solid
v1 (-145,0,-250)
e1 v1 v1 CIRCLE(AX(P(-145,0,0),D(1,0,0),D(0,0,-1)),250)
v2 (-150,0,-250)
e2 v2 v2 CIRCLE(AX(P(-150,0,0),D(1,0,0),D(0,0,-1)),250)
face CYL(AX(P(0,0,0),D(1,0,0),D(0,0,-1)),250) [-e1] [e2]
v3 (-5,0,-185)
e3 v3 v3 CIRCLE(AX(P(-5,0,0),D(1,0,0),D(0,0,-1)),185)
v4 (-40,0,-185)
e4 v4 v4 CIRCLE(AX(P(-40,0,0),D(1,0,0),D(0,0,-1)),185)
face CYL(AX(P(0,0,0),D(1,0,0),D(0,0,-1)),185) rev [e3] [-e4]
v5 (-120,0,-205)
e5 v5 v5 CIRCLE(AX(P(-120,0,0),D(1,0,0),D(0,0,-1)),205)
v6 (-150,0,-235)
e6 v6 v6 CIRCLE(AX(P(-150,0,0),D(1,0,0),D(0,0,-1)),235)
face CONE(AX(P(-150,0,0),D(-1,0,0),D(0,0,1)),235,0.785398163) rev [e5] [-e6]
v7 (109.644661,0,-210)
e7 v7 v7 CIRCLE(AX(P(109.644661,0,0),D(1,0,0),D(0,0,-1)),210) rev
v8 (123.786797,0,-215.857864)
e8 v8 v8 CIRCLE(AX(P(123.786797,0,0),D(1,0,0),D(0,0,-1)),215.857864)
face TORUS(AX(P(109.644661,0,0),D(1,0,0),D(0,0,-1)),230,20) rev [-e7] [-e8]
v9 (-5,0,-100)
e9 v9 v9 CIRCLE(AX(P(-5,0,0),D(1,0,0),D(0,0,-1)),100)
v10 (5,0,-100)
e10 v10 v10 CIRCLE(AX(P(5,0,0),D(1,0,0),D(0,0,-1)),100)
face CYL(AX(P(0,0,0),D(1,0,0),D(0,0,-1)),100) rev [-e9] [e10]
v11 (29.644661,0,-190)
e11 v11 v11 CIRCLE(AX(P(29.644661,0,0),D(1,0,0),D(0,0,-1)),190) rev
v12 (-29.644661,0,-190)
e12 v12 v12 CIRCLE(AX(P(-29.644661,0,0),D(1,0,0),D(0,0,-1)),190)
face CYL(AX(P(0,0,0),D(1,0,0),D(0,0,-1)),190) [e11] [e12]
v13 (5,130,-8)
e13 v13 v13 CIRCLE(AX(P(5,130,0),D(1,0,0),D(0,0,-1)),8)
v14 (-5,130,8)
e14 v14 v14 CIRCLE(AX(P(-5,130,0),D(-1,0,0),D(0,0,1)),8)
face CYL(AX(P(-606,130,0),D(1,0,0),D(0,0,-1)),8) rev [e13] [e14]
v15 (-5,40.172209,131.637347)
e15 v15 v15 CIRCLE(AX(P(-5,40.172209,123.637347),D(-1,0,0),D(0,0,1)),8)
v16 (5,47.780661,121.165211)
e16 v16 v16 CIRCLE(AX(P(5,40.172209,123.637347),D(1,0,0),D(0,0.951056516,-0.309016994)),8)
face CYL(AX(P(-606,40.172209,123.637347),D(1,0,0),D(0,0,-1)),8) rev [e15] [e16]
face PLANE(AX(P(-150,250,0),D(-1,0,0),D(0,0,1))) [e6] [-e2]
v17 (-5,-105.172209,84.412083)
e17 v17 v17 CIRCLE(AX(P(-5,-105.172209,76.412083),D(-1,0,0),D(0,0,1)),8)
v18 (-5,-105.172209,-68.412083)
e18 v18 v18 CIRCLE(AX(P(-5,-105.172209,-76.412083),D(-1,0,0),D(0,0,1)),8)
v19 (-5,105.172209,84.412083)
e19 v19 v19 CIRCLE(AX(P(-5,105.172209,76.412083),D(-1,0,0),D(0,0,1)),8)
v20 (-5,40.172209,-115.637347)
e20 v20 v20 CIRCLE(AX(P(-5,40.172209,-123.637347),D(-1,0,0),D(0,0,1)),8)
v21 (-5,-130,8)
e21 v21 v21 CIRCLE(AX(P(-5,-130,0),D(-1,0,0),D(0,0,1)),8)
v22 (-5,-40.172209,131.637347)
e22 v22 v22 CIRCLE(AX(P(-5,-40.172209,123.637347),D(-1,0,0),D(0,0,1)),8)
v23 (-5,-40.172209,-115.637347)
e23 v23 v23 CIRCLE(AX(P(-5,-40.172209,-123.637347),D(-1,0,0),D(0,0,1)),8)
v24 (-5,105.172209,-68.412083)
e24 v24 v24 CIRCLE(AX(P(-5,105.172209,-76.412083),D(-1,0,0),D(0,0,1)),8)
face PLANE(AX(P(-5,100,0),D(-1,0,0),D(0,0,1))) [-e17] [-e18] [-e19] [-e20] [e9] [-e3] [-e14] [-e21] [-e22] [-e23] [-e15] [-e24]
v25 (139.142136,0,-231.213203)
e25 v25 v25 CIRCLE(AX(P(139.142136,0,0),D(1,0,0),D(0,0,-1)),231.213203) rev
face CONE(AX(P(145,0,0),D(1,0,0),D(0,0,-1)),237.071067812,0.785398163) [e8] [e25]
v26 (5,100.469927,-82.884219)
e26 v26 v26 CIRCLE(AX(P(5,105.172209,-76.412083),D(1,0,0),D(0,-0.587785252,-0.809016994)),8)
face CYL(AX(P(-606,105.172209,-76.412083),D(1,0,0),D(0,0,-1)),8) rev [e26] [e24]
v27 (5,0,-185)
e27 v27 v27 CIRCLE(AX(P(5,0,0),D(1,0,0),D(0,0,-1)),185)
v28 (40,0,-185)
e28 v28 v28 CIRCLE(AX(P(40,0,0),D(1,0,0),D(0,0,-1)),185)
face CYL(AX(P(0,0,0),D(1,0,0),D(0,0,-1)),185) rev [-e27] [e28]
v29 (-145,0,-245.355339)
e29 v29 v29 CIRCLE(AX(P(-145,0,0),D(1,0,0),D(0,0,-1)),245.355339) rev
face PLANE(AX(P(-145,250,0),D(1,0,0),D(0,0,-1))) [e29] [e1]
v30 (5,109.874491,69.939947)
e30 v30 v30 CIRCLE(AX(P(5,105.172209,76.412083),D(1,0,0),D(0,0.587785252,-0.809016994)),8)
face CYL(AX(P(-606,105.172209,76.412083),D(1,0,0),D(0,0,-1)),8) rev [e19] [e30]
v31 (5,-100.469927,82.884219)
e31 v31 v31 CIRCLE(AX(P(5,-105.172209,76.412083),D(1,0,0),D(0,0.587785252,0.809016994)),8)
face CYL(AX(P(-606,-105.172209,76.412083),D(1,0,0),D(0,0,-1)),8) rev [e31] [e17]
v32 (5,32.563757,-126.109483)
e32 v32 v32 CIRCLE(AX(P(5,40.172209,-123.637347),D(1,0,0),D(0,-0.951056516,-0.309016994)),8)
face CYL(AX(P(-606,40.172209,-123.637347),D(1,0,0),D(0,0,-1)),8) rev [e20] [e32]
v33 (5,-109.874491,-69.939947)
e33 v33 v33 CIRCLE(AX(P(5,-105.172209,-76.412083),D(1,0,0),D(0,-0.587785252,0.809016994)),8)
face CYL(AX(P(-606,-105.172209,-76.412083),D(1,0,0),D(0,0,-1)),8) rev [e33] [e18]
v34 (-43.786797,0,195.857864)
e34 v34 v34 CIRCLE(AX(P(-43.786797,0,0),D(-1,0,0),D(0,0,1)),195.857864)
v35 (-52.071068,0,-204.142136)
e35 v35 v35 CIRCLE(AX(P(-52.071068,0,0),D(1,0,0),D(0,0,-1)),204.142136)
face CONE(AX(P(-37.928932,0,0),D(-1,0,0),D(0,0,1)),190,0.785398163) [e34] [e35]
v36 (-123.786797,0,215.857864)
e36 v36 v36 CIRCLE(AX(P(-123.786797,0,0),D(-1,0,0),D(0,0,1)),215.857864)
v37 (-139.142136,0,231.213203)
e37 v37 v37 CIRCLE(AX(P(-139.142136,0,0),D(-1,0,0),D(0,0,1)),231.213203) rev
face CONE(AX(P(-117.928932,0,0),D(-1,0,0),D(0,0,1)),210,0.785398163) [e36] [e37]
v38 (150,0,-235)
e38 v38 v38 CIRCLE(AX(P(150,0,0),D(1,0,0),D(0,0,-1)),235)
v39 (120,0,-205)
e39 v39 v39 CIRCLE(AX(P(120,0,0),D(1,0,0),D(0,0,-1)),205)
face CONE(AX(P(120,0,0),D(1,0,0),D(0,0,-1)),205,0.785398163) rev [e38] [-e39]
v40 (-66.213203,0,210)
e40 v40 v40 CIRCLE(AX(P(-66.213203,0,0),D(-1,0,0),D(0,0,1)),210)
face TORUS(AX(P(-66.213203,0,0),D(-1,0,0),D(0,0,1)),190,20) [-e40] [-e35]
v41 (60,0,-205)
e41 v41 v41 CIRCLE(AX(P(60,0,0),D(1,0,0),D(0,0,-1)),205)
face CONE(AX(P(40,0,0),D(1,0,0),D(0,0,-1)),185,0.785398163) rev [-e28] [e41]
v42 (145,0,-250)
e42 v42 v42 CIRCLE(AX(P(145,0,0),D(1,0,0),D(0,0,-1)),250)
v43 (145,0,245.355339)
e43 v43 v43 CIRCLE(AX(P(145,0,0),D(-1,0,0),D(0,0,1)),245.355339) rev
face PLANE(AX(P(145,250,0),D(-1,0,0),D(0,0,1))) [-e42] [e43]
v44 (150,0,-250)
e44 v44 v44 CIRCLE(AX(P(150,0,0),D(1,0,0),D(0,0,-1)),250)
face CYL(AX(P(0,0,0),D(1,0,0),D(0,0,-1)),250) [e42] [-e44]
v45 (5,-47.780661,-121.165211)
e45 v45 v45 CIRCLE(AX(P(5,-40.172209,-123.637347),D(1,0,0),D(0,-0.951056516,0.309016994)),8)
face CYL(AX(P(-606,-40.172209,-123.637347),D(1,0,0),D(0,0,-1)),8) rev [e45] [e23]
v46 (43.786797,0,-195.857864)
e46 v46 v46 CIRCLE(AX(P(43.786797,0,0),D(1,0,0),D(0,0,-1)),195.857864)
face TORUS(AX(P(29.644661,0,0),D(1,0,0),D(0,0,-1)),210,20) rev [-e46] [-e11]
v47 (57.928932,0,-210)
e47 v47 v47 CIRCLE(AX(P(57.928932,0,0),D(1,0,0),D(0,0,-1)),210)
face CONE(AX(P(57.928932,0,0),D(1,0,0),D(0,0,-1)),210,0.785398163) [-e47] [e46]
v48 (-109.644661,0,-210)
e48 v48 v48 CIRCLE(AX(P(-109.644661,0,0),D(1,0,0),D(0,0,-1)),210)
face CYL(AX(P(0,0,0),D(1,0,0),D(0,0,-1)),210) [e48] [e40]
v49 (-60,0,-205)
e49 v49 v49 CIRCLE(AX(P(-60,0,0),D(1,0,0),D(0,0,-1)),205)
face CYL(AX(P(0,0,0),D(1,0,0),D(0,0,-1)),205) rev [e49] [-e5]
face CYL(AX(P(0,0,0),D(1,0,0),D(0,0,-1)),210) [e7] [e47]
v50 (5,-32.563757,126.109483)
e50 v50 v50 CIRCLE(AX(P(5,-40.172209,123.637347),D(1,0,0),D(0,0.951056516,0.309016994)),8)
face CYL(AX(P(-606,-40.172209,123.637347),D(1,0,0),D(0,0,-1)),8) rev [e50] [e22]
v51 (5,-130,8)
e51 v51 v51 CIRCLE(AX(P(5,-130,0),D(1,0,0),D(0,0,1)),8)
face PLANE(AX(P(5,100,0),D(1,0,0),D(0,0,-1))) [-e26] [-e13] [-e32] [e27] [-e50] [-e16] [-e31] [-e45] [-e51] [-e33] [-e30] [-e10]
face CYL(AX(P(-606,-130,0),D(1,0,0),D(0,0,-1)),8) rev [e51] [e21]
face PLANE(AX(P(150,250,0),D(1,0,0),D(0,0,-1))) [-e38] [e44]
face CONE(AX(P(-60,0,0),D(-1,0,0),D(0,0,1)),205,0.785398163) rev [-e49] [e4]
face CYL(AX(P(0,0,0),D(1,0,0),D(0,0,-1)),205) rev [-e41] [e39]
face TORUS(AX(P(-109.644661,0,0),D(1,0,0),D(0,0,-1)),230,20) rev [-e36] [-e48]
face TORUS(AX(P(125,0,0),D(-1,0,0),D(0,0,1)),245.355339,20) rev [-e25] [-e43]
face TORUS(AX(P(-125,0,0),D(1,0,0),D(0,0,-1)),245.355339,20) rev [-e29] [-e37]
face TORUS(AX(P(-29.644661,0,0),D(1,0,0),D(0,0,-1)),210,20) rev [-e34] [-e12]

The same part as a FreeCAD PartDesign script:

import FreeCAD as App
import Part
import Sketcher
from FreeCAD import Vector


def edges_at(feature, points):
    """Names of the edges that pass closest to the given points."""
    edges = feature.Shape.Edges
    near = lambda p: min(range(len(edges)), key=lambda i: edges[i].distToShape(Part.Vertex(*p))[0])
    return sorted({f"Edge{near(p) + 1}" for p in points})

doc = App.newDocument("Part")
body = doc.addObject("PartDesign::Body", "Body")

# Sketch on XY plane
sketch1 = body.newObject("Sketcher::SketchObject", "Sketch")
sketch1.AttachmentSupport = (doc.getObject("XY_Plane"), [""])
sketch1.MapMode = "FlatFace"
sketch1.addGeometry([
    Part.LineSegment(Vector(-150, 250, 0), Vector(-150, 235, 0)),  # 0
    Part.LineSegment(Vector(-150, 235, 0), Vector(-120, 205, 0)),  # 1
    Part.LineSegment(Vector(-120, 205, 0), Vector(-60, 205, 0)),  # 2
    Part.LineSegment(Vector(-60, 205, 0), Vector(-40, 185, 0)),  # 3
    Part.LineSegment(Vector(-40, 185, 0), Vector(-5, 185, 0)),  # 4
    Part.LineSegment(Vector(-5, 185, 0), Vector(-5, 100, 0)),  # 5
    Part.LineSegment(Vector(-5, 100, 0), Vector(5, 100, 0)),  # 6
    Part.LineSegment(Vector(5, 100, 0), Vector(5, 185, 0)),  # 7
    Part.LineSegment(Vector(5, 185, 0), Vector(40, 185, 0)),  # 8
    Part.LineSegment(Vector(40, 185, 0), Vector(60, 205, 0)),  # 9
    Part.LineSegment(Vector(60, 205, 0), Vector(120, 205, 0)),  # 10
    Part.LineSegment(Vector(120, 205, 0), Vector(150, 235, 0)),  # 11
    Part.LineSegment(Vector(150, 235, 0), Vector(150, 250, 0)),  # 12
    Part.LineSegment(Vector(150, 250, 0), Vector(145, 250, 0)),  # 13
    Part.LineSegment(Vector(145, 250, 0), Vector(145, 237, 0)),  # 14
    Part.LineSegment(Vector(145, 237, 0), Vector(118, 210, 0)),  # 15
    Part.LineSegment(Vector(118, 210, 0), Vector(58, 210, 0)),  # 16
    Part.LineSegment(Vector(58, 210, 0), Vector(38, 190, 0)),  # 17
    Part.LineSegment(Vector(38, 190, 0), Vector(-38, 190, 0)),  # 18
    Part.LineSegment(Vector(-38, 190, 0), Vector(-58, 210, 0)),  # 19
    Part.LineSegment(Vector(-58, 210, 0), Vector(-118, 210, 0)),  # 20
    Part.LineSegment(Vector(-118, 210, 0), Vector(-145, 237, 0)),  # 21
    Part.LineSegment(Vector(-145, 237, 0), Vector(-145, 250, 0)),  # 22
    Part.LineSegment(Vector(-145, 250, 0), Vector(-150, 250, 0)),  # 23
], False)
sketch1.addConstraint([
    Sketcher.Constraint("Coincident", 0, 2, 1, 1),
    Sketcher.Constraint("Coincident", 1, 2, 2, 1),
    Sketcher.Constraint("Coincident", 2, 2, 3, 1),
    Sketcher.Constraint("Coincident", 3, 2, 4, 1),
    Sketcher.Constraint("Coincident", 4, 2, 5, 1),
    Sketcher.Constraint("Coincident", 5, 2, 6, 1),
    Sketcher.Constraint("Coincident", 6, 2, 7, 1),
    Sketcher.Constraint("Coincident", 7, 2, 8, 1),
    Sketcher.Constraint("Coincident", 8, 2, 9, 1),
    Sketcher.Constraint("Coincident", 9, 2, 10, 1),
    Sketcher.Constraint("Coincident", 10, 2, 11, 1),
    Sketcher.Constraint("Coincident", 11, 2, 12, 1),
    Sketcher.Constraint("Coincident", 12, 2, 13, 1),
    Sketcher.Constraint("Coincident", 13, 2, 14, 1),
    Sketcher.Constraint("Coincident", 14, 2, 15, 1),
    Sketcher.Constraint("Coincident", 15, 2, 16, 1),
    Sketcher.Constraint("Coincident", 16, 2, 17, 1),
    Sketcher.Constraint("Coincident", 17, 2, 18, 1),
    Sketcher.Constraint("Coincident", 18, 2, 19, 1),
    Sketcher.Constraint("Coincident", 19, 2, 20, 1),
    Sketcher.Constraint("Coincident", 20, 2, 21, 1),
    Sketcher.Constraint("Coincident", 21, 2, 22, 1),
    Sketcher.Constraint("Coincident", 22, 2, 23, 1),
    Sketcher.Constraint("Coincident", 23, 2, 0, 1),
    Sketcher.Constraint("Vertical", 0),
    Sketcher.Constraint("Horizontal", 2),
    Sketcher.Constraint("Horizontal", 4),
    Sketcher.Constraint("Vertical", 5),
    Sketcher.Constraint("Horizontal", 6),
    Sketcher.Constraint("Vertical", 7),
    Sketcher.Constraint("Horizontal", 8),
    Sketcher.Constraint("Horizontal", 10),
    Sketcher.Constraint("Vertical", 12),
    Sketcher.Constraint("Horizontal", 13),
    Sketcher.Constraint("Vertical", 14),
    Sketcher.Constraint("Horizontal", 16),
    Sketcher.Constraint("Horizontal", 18),
    Sketcher.Constraint("Horizontal", 20),
    Sketcher.Constraint("Vertical", 22),
    Sketcher.Constraint("Horizontal", 23),
    Sketcher.Constraint("Symmetric", 4, 2, 7, 2, -2),
    Sketcher.Constraint("Symmetric", 2, 2, 9, 2, -2),
    Sketcher.Constraint("Symmetric", 0, 2, 11, 2, -2),
    Sketcher.Constraint("Symmetric", 16, 2, 19, 2, -2),
    Sketcher.Constraint("Symmetric", 14, 2, 21, 2, -2),
    Sketcher.Constraint("Parallel", 1, 3),
    Sketcher.Constraint("Perpendicular", 3, 9),
    Sketcher.Constraint("Parallel", 9, 11),
    Sketcher.Constraint("Parallel", 11, 15),
    Sketcher.Constraint("Parallel", 15, 17),
    Sketcher.Constraint("Perpendicular", 17, 19),
    Sketcher.Constraint("Parallel", 19, 21),
    Sketcher.Constraint("Horizontal", 13, 2, 22, 2),
    Sketcher.Constraint("Equal", 4, 8),
    Sketcher.Constraint("Equal", 10, 16),
    Sketcher.Constraint("Equal", 9, 17),
    Sketcher.Constraint("DistanceX", 2, 1, 2, 2, 60.0),
    Sketcher.Constraint("DistanceX", 4, 1, 4, 2, 35.0),
    Sketcher.Constraint("DistanceX", 6, 1, 6, 2, 10.0),
    Sketcher.Constraint("DistanceX", 13, 2, 13, 1, 5.0),
    Sketcher.Constraint("DistanceY", 0, 2, 0, 1, 15.0),
    Sketcher.Constraint("DistanceY", 5, 2, 5, 1, 85.0),
    Sketcher.Constraint("DistanceX", 0, 2, -1, 1, 150.0),
    Sketcher.Constraint("DistanceY", -1, 1, 0, 2, 235.0),
    Sketcher.Constraint("DistanceX", 1, 2, -1, 1, 120.0),
    Sketcher.Constraint("DistanceY", -1, 1, 15, 2, 210.0),
    Sketcher.Constraint("Distance", 15, 38.284271),
])
revolution = body.newObject("PartDesign::Revolution", "Revolution")
revolution.Profile = sketch1
revolution.ReferenceAxis = (sketch1, ["H_Axis"])
revolution.Angle = 360
doc.recompute()

fillet = body.newObject("PartDesign::Fillet", "Fillet")
fillet.Base = (revolution, edges_at(revolution, [
    (145, 0, 237.071),
    (117.929, 0, 210),
    (37.929, 0, 190),
    (-37.929, 0, 190),
    (-57.929, 0, 210),
    (-117.929, 0, 210),
    (-145, 0, 237.071),
]))
fillet.Radius = 20

# Sketch on YZ plane
sketch2 = body.newObject("Sketcher::SketchObject", "Sketch001")
sketch2.AttachmentSupport = (doc.getObject("YZ_Plane"), [""])
sketch2.MapMode = "FlatFace"
sketch2.AttachmentOffset = App.Placement(Vector(0, 0, 5), App.Rotation())
sketch2.addGeometry(Part.Circle(Vector(130, 0, 0), Vector(0, 0, 1), 8), False)
sketch2.addConstraint([
    Sketcher.Constraint("PointOnObject", 0, 3, -1),
    Sketcher.Constraint("Diameter", 0, 16.0),
    Sketcher.Constraint("DistanceX", -1, 1, 0, 3, 130.0),
])
pocket1 = body.newObject("PartDesign::Pocket", "Pocket")
pocket1.Profile = sketch2
pocket1.Length = 611
doc.recompute()

polarpattern = body.newObject("PartDesign::PolarPattern", "PolarPattern")
polarpattern.Originals = [pocket1]
polarpattern.Axis = (doc.getObject("X_Axis"), [""])
polarpattern.Angle = 360
polarpattern.Occurrences = 10
body.Tip = polarpattern

doc.recompute()
